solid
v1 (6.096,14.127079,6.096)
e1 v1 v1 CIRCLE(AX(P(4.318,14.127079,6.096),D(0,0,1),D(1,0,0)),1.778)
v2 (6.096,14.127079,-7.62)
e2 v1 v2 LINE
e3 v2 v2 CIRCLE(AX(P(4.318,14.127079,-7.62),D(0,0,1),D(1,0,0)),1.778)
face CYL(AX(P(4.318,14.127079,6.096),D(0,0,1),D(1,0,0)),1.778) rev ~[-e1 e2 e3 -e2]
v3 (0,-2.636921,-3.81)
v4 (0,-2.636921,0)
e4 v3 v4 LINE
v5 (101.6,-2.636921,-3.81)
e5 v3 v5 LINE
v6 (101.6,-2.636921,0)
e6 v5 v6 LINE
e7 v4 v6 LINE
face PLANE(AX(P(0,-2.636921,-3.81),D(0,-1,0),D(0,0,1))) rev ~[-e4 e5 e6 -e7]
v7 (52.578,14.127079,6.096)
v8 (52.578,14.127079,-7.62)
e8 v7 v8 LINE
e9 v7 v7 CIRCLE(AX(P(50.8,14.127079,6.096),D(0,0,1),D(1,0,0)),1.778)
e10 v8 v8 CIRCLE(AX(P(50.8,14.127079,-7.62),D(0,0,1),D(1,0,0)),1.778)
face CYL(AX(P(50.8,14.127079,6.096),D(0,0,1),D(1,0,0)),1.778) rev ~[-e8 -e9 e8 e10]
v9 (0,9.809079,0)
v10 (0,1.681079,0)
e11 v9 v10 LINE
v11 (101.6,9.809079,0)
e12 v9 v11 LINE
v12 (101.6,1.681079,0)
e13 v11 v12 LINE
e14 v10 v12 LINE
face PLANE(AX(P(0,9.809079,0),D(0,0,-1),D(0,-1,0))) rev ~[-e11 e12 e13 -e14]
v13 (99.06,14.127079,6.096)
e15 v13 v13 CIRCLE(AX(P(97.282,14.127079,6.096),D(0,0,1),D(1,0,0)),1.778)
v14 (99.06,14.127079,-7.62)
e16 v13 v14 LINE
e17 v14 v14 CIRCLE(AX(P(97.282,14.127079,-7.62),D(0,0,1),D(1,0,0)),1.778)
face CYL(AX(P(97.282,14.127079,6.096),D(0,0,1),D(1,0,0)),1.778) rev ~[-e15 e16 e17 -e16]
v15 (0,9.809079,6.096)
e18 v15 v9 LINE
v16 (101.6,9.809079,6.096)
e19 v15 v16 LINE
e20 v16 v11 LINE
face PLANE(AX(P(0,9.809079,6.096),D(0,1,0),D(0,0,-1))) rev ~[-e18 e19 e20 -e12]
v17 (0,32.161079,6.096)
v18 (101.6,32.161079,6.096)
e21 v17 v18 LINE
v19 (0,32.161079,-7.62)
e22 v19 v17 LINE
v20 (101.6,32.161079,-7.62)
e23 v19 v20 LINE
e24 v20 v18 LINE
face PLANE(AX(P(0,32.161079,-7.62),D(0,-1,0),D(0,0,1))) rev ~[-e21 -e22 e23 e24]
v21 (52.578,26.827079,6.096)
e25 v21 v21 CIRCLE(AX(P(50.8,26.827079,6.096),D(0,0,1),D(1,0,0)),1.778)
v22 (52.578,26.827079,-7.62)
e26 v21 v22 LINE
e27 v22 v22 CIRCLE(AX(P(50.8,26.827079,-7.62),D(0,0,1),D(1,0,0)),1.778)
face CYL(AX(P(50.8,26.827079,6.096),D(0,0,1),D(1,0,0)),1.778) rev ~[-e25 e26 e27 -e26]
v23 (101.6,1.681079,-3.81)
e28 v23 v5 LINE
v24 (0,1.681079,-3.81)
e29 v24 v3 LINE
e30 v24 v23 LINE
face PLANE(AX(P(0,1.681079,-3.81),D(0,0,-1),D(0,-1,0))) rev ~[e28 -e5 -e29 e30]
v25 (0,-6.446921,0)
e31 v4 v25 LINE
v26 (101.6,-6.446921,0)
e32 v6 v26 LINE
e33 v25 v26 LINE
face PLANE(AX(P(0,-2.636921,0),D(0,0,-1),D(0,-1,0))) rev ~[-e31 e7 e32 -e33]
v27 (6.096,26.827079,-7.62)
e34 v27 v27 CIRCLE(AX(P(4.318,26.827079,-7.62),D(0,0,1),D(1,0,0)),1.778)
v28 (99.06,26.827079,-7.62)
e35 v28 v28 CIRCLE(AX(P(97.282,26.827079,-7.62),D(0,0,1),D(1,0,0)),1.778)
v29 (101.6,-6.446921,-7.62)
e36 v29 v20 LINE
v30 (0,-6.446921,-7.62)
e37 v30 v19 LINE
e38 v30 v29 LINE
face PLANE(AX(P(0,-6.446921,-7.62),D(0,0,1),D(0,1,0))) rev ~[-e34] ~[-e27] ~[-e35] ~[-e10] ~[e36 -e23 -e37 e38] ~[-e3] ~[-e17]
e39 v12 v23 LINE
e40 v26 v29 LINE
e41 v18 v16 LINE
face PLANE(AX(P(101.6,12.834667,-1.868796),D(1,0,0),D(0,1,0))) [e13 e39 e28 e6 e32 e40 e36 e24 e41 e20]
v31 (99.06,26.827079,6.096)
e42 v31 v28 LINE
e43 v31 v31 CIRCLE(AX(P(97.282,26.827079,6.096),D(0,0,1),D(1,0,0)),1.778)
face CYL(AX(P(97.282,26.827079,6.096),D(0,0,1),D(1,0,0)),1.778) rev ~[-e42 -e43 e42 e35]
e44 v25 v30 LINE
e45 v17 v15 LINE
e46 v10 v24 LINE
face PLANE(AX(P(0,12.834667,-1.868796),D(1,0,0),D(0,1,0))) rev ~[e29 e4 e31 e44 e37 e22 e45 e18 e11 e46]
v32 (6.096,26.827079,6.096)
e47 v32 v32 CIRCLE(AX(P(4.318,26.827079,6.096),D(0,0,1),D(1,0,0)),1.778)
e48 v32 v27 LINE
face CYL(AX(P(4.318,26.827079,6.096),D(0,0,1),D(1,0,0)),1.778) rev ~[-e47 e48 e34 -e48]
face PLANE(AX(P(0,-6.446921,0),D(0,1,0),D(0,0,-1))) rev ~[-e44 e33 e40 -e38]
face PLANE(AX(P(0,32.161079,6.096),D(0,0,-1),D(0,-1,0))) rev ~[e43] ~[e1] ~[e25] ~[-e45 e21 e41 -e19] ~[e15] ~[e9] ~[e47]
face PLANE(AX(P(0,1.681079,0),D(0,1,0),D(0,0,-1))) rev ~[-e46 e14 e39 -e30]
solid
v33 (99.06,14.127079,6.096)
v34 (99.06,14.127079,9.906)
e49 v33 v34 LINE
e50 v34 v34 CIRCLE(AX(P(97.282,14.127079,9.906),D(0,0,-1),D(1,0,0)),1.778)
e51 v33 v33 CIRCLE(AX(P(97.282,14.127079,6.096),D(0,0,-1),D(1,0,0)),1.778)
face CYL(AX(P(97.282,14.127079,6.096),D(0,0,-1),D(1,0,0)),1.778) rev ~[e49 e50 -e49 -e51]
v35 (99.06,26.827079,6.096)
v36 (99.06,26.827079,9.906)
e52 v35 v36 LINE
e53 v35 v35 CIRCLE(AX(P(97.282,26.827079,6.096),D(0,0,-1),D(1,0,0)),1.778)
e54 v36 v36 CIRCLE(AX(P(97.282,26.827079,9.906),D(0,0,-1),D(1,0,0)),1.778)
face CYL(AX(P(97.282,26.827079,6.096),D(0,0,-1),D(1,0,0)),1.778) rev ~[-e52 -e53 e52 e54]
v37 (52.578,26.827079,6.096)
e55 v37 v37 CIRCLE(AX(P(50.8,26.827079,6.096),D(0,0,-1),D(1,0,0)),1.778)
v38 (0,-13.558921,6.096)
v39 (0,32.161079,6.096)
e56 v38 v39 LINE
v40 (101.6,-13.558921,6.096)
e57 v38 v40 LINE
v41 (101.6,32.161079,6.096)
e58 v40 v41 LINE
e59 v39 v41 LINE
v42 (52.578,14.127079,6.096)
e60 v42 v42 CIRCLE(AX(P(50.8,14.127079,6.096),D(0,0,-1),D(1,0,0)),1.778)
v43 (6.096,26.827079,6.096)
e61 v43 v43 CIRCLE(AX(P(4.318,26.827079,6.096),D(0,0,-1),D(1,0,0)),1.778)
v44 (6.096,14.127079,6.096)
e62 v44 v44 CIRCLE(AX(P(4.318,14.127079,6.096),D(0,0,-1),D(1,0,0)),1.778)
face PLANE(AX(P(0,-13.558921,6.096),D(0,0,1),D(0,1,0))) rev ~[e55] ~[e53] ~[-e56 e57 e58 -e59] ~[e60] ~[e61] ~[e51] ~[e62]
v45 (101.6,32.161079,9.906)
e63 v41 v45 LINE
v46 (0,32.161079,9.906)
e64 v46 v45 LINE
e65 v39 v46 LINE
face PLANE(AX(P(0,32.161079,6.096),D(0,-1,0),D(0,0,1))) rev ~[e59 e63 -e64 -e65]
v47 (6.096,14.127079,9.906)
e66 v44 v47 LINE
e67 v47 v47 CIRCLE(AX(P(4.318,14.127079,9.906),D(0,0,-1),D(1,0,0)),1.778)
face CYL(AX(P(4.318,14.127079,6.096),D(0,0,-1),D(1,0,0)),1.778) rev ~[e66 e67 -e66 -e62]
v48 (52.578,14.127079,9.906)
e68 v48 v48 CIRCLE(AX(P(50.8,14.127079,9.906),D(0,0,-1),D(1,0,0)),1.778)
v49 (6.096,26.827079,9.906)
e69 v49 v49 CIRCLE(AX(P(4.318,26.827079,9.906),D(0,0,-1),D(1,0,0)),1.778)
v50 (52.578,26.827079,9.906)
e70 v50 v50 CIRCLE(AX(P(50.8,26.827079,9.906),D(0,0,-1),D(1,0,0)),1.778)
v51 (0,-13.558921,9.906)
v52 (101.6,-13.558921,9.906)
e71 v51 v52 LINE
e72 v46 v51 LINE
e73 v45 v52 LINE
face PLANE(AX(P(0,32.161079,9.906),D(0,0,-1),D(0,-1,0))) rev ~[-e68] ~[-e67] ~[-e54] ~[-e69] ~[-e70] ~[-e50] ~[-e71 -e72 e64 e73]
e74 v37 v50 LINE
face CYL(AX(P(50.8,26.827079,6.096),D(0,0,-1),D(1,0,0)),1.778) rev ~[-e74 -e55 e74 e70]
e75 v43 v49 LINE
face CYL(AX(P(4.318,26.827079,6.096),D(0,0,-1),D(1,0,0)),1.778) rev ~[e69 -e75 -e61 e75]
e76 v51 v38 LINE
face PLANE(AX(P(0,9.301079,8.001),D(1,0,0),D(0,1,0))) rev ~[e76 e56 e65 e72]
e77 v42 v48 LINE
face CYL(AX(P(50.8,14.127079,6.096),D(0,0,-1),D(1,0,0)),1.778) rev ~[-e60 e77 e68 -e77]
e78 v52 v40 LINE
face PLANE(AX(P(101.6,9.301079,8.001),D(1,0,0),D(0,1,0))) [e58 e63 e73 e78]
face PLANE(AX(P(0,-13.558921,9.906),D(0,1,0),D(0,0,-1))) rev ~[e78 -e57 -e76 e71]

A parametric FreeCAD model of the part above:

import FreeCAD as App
import Part
import Sketcher
from FreeCAD import Vector
Q = App.Units.Quantity

doc = App.newDocument("Part")
body = doc.addObject("PartDesign::Body", "Body")

# Sketch on YZ plane
sketch1 = doc.addObject("Sketcher::SketchObject", "Sketch")
body.addObject(sketch1)
sketch1.AttachmentSupport = (doc.YZ_Plane, [""])
sketch1.MapMode = "FlatFace"
sketch1.addGeometry(Part.LineSegment(Vector(-6.4, 0, 0), Vector(-6.4, -7.6, 0)), False)
sketch1.addGeometry(Part.LineSegment(Vector(-6.4, -7.6, 0), Vector(32.2, -7.6, 0)), False)
sketch1.addGeometry(Part.LineSegment(Vector(32.2, -7.6, 0), Vector(32.2, 6.1, 0)), False)
sketch1.addGeometry(Part.LineSegment(Vector(32.2, 6.1, 0), Vector(9.8, 6.1, 0)), False)
sketch1.addGeometry(Part.LineSegment(Vector(9.8, 6.1, 0), Vector(9.8, 0, 0)), False)
sketch1.addGeometry(Part.LineSegment(Vector(9.8, 0, 0), Vector(1.7, 0, 0)), False)
sketch1.addGeometry(Part.LineSegment(Vector(1.7, 0, 0), Vector(1.7, -3.8, 0)), False)
sketch1.addGeometry(Part.LineSegment(Vector(1.7, -3.8, 0), Vector(-2.6, -3.8, 0)), False)
sketch1.addGeometry(Part.LineSegment(Vector(-2.6, -3.8, 0), Vector(-2.6, 0, 0)), False)
sketch1.addGeometry(Part.LineSegment(Vector(-2.6, 0, 0), Vector(-6.4, 0, 0)), False)
sketch1.addConstraint(Sketcher.Constraint("Coincident", 0, 2, 1, 1))
sketch1.addConstraint(Sketcher.Constraint("Coincident", 1, 2, 2, 1))
sketch1.addConstraint(Sketcher.Constraint("Coincident", 2, 2, 3, 1))
sketch1.addConstraint(Sketcher.Constraint("Coincident", 3, 2, 4, 1))
sketch1.addConstraint(Sketcher.Constraint("Coincident", 4, 2, 5, 1))
sketch1.addConstraint(Sketcher.Constraint("Coincident", 5, 2, 6, 1))
sketch1.addConstraint(Sketcher.Constraint("Coincident", 6, 2, 7, 1))
sketch1.addConstraint(Sketcher.Constraint("Coincident", 7, 2, 8, 1))
sketch1.addConstraint(Sketcher.Constraint("Coincident", 8, 2, 9, 1))
sketch1.addConstraint(Sketcher.Constraint("Coincident", 9, 2, 0, 1))
sketch1.addConstraint(Sketcher.Constraint("Vertical", 0))
sketch1.addConstraint(Sketcher.Constraint("Horizontal", 1))
sketch1.addConstraint(Sketcher.Constraint("Vertical", 2))
sketch1.addConstraint(Sketcher.Constraint("Horizontal", 3))
sketch1.addConstraint(Sketcher.Constraint("Vertical", 4))
sketch1.addConstraint(Sketcher.Constraint("Horizontal", 5))
sketch1.addConstraint(Sketcher.Constraint("Vertical", 6))
sketch1.addConstraint(Sketcher.Constraint("Horizontal", 7))
sketch1.addConstraint(Sketcher.Constraint("Vertical", 8))
sketch1.addConstraint(Sketcher.Constraint("Horizontal", 9))
sketch1.addConstraint(Sketcher.Constraint("PointOnObject", 4, 2, -1))
sketch1.addConstraint(Sketcher.Constraint("PointOnObject", 8, 2, -1))
sketch1.addConstraint(Sketcher.Constraint("Equal", 9, 6))
sketch1.addConstraint(Sketcher.Constraint("DistanceY", 0, 2, 0, 1, Q("0.3 in")))
sketch1.addConstraint(Sketcher.Constraint("DistanceX", 1, 1, 1, 2, Q("1.52 in")))
sketch1.addConstraint(Sketcher.Constraint("DistanceX", 3, 2, 3, 1, Q("0.88 in")))
sketch1.addConstraint(Sketcher.Constraint("DistanceX", 5, 2, 5, 1, Q("0.32 in")))
sketch1.addConstraint(Sketcher.Constraint("DistanceX", 7, 2, 7, 1, Q("0.17 in")))
sketch1.addConstraint(Sketcher.Constraint("DistanceY", 2, 1, 2, 2, Q("0.54 in")))
sketch1.addConstraint(Sketcher.Constraint("DistanceX", 0, 2, -1, 1, 6.446921))
pad1 = doc.addObject("PartDesign::Pad", "Pad")
body.addObject(pad1)
pad1.Profile = sketch1
pad1.Length = Q("4 in")

# Sketch on XY plane
sketch2 = doc.addObject("Sketcher::SketchObject", "Sketch001")
body.addObject(sketch2)
sketch2.AttachmentSupport = (doc.XY_Plane, [""])
sketch2.MapMode = "FlatFace"
sketch2.AttachmentOffset = App.Placement(Vector(0, 0, 0.24 * 25.4), App.Rotation())
sketch2.addGeometry(Part.Circle(Vector(97.3, 14.1, 0), Vector(0, 0, 1), 1.8), False)
sketch2.addGeometry(Part.Circle(Vector(97.3, 26.8, 0), Vector(0, 0, 1), 1.8), False)
sketch2.addGeometry(Part.Circle(Vector(4.3, 14.1, 0), Vector(0, 0, 1), 1.8), False)
sketch2.addGeometry(Part.Circle(Vector(4.3, 26.8, 0), Vector(0, 0, 1), 1.8), False)
sketch2.addGeometry(Part.Circle(Vector(50.8, 14.1, 0), Vector(0, 0, 1), 1.8), False)
sketch2.addGeometry(Part.Circle(Vector(50.8, 26.8, 0), Vector(0, 0, 1), 1.8), False)
sketch2.addConstraint(Sketcher.Constraint("Equal", 0, 1))
sketch2.addConstraint(Sketcher.Constraint("Equal", 1, 2))
sketch2.addConstraint(Sketcher.Constraint("Equal", 2, 3))
sketch2.addConstraint(Sketcher.Constraint("Equal", 3, 4))
sketch2.addConstraint(Sketcher.Constraint("Equal", 4, 5))
sketch2.addConstraint(Sketcher.Constraint("Horizontal", 0, 3, 2, 3))
sketch2.addConstraint(Sketcher.Constraint("Horizontal", 1, 3, 3, 3))
sketch2.addConstraint(Sketcher.Constraint("Horizontal", 2, 3, 4, 3))
sketch2.addConstraint(Sketcher.Constraint("Horizontal", 3, 3, 5, 3))
sketch2.addConstraint(Sketcher.Constraint("Vertical", 0, 3, 1, 3))
sketch2.addConstraint(Sketcher.Constraint("Vertical", 2, 3, 3, 3))
sketch2.addConstraint(Sketcher.Constraint("Vertical", 4, 3, 5, 3))
sketch2.addConstraint(Sketcher.Constraint("Diameter", 0, Q("0.14 in")))
sketch2.addConstraint(Sketcher.Constraint("DistanceX", -1, 1, 4, 3, Q("2 in")))
sketch2.addConstraint(Sketcher.Constraint("DistanceY", 0, 3, 1, 3, Q("0.5 in")))
sketch2.addConstraint(Sketcher.Constraint("DistanceX", -1, 1, 0, 3, Q("3.83 in")))
sketch2.addConstraint(Sketcher.Constraint("DistanceX", -1, 1, 2, 3, Q("0.17 in")))
sketch2.addConstraint(Sketcher.Constraint("DistanceY", -1, 1, 0, 3, 14.127079))
pocket1 = doc.addObject("PartDesign::Pocket", "Pocket")
body.addObject(pocket1)
pocket1.Profile = sketch2
pocket1.Type = "ThroughAll"
body2 = doc.addObject("PartDesign::Body", "Body001")

# Sketch on YZ plane
sketch3 = doc.addObject("Sketcher::SketchObject", "Sketch002")
body2.addObject(sketch3)
sketch3.AttachmentSupport = (doc.getObject("YZ_Plane001"), [""])
sketch3.MapMode = "FlatFace"
sketch3.addGeometry(Part.LineSegment(Vector(-13.6, 9.9, 0), Vector(-13.6, 6.1, 0)), False)
sketch3.addGeometry(Part.LineSegment(Vector(-13.6, 6.1, 0), Vector(32.2, 6.1, 0)), False)
sketch3.addGeometry(Part.LineSegment(Vector(32.2, 6.1, 0), Vector(32.2, 9.9, 0)), False)
sketch3.addGeometry(Part.LineSegment(Vector(32.2, 9.9, 0), Vector(-13.6, 9.9, 0)), False)
sketch3.addConstraint(Sketcher.Constraint("Coincident", 0, 2, 1, 1))
sketch3.addConstraint(Sketcher.Constraint("Coincident", 1, 2, 2, 1))
sketch3.addConstraint(Sketcher.Constraint("Coincident", 2, 2, 3, 1))
sketch3.addConstraint(Sketcher.Constraint("Coincident", 3, 2, 0, 1))
sketch3.addConstraint(Sketcher.Constraint("Vertical", 0))
sketch3.addConstraint(Sketcher.Constraint("Horizontal", 1))
sketch3.addConstraint(Sketcher.Constraint("Vertical", 2))
sketch3.addConstraint(Sketcher.Constraint("Horizontal", 3))
sketch3.addConstraint(Sketcher.Constraint("DistanceX", 1, 1, 1, 2, Q("1.8 in")))
sketch3.addConstraint(Sketcher.Constraint("DistanceY", 0, 2, 0, 1, Q("0.15 in")))
sketch3.addConstraint(Sketcher.Constraint("DistanceY", -1, 1, 0, 2, Q("0.24 in")))
sketch3.addConstraint(Sketcher.Constraint("DistanceX", 0, 2, -1, 1, 13.558921))
pad2 = doc.addObject("PartDesign::Pad", "Pad001")
body2.addObject(pad2)
pad2.Profile = sketch3
pad2.Length = Q("4 in")

# Sketch on XY plane
sketch4 = doc.addObject("Sketcher::SketchObject", "Sketch003")
body2.addObject(sketch4)
sketch4.AttachmentSupport = (doc.getObject("XY_Plane001"), [""])
sketch4.MapMode = "FlatFace"
sketch4.AttachmentOffset = App.Placement(Vector(0, 0, 0.24 * 25.4), App.Rotation())
sketch4.addGeometry(Part.Circle(Vector(97.3, 14.1, 0), Vector(0, 0, 1), 1.8), False)
sketch4.addGeometry(Part.Circle(Vector(50.8, 14.1, 0), Vector(0, 0, 1), 1.8), False)
sketch4.addGeometry(Part.Circle(Vector(4.3, 14.1, 0), Vector(0, 0, 1), 1.8), False)
sketch4.addGeometry(Part.Circle(Vector(4.3, 26.8, 0), Vector(0, 0, 1), 1.8), False)
sketch4.addGeometry(Part.Circle(Vector(50.8, 26.8, 0), Vector(0, 0, 1), 1.8), False)
sketch4.addGeometry(Part.Circle(Vector(97.3, 26.8, 0), Vector(0, 0, 1), 1.8), False)
sketch4.addConstraint(Sketcher.Constraint("Equal", 0, 1))
sketch4.addConstraint(Sketcher.Constraint("Equal", 1, 2))
sketch4.addConstraint(Sketcher.Constraint("Equal", 2, 3))
sketch4.addConstraint(Sketcher.Constraint("Equal", 3, 4))
sketch4.addConstraint(Sketcher.Constraint("Equal", 4, 5))
sketch4.addConstraint(Sketcher.Constraint("Horizontal", 0, 3, 1, 3))
sketch4.addConstraint(Sketcher.Constraint("Horizontal", 1, 3, 2, 3))
sketch4.addConstraint(Sketcher.Constraint("Horizontal", 3, 3, 4, 3))
sketch4.addConstraint(Sketcher.Constraint("Horizontal", 4, 3, 5, 3))
sketch4.addConstraint(Sketcher.Constraint("Vertical", 2, 3, 3, 3))
sketch4.addConstraint(Sketcher.Constraint("Vertical", 1, 3, 4, 3))
sketch4.addConstraint(Sketcher.Constraint("Vertical", 0, 3, 5, 3))
sketch4.addConstraint(Sketcher.Constraint("Diameter", 0, Q("0.14 in")))
sketch4.addConstraint(Sketcher.Constraint("DistanceX", -1, 1, 1, 3, Q("2 in")))
sketch4.addConstraint(Sketcher.Constraint("DistanceY", 2, 3, 3, 3, Q("0.5 in")))
sketch4.addConstraint(Sketcher.Constraint("DistanceX", -1, 1, 0, 3, Q("3.83 in")))
sketch4.addConstraint(Sketcher.Constraint("DistanceX", -1, 1, 2, 3, Q("0.17 in")))
sketch4.addConstraint(Sketcher.Constraint("DistanceY", -1, 1, 0, 3, 14.127079))
pocket2 = doc.addObject("PartDesign::Pocket", "Pocket001")
body2.addObject(pocket2)
pocket2.Profile = sketch4
pocket2.Type = "ThroughAll"
pocket2.Reversed = True

doc.recompute()
